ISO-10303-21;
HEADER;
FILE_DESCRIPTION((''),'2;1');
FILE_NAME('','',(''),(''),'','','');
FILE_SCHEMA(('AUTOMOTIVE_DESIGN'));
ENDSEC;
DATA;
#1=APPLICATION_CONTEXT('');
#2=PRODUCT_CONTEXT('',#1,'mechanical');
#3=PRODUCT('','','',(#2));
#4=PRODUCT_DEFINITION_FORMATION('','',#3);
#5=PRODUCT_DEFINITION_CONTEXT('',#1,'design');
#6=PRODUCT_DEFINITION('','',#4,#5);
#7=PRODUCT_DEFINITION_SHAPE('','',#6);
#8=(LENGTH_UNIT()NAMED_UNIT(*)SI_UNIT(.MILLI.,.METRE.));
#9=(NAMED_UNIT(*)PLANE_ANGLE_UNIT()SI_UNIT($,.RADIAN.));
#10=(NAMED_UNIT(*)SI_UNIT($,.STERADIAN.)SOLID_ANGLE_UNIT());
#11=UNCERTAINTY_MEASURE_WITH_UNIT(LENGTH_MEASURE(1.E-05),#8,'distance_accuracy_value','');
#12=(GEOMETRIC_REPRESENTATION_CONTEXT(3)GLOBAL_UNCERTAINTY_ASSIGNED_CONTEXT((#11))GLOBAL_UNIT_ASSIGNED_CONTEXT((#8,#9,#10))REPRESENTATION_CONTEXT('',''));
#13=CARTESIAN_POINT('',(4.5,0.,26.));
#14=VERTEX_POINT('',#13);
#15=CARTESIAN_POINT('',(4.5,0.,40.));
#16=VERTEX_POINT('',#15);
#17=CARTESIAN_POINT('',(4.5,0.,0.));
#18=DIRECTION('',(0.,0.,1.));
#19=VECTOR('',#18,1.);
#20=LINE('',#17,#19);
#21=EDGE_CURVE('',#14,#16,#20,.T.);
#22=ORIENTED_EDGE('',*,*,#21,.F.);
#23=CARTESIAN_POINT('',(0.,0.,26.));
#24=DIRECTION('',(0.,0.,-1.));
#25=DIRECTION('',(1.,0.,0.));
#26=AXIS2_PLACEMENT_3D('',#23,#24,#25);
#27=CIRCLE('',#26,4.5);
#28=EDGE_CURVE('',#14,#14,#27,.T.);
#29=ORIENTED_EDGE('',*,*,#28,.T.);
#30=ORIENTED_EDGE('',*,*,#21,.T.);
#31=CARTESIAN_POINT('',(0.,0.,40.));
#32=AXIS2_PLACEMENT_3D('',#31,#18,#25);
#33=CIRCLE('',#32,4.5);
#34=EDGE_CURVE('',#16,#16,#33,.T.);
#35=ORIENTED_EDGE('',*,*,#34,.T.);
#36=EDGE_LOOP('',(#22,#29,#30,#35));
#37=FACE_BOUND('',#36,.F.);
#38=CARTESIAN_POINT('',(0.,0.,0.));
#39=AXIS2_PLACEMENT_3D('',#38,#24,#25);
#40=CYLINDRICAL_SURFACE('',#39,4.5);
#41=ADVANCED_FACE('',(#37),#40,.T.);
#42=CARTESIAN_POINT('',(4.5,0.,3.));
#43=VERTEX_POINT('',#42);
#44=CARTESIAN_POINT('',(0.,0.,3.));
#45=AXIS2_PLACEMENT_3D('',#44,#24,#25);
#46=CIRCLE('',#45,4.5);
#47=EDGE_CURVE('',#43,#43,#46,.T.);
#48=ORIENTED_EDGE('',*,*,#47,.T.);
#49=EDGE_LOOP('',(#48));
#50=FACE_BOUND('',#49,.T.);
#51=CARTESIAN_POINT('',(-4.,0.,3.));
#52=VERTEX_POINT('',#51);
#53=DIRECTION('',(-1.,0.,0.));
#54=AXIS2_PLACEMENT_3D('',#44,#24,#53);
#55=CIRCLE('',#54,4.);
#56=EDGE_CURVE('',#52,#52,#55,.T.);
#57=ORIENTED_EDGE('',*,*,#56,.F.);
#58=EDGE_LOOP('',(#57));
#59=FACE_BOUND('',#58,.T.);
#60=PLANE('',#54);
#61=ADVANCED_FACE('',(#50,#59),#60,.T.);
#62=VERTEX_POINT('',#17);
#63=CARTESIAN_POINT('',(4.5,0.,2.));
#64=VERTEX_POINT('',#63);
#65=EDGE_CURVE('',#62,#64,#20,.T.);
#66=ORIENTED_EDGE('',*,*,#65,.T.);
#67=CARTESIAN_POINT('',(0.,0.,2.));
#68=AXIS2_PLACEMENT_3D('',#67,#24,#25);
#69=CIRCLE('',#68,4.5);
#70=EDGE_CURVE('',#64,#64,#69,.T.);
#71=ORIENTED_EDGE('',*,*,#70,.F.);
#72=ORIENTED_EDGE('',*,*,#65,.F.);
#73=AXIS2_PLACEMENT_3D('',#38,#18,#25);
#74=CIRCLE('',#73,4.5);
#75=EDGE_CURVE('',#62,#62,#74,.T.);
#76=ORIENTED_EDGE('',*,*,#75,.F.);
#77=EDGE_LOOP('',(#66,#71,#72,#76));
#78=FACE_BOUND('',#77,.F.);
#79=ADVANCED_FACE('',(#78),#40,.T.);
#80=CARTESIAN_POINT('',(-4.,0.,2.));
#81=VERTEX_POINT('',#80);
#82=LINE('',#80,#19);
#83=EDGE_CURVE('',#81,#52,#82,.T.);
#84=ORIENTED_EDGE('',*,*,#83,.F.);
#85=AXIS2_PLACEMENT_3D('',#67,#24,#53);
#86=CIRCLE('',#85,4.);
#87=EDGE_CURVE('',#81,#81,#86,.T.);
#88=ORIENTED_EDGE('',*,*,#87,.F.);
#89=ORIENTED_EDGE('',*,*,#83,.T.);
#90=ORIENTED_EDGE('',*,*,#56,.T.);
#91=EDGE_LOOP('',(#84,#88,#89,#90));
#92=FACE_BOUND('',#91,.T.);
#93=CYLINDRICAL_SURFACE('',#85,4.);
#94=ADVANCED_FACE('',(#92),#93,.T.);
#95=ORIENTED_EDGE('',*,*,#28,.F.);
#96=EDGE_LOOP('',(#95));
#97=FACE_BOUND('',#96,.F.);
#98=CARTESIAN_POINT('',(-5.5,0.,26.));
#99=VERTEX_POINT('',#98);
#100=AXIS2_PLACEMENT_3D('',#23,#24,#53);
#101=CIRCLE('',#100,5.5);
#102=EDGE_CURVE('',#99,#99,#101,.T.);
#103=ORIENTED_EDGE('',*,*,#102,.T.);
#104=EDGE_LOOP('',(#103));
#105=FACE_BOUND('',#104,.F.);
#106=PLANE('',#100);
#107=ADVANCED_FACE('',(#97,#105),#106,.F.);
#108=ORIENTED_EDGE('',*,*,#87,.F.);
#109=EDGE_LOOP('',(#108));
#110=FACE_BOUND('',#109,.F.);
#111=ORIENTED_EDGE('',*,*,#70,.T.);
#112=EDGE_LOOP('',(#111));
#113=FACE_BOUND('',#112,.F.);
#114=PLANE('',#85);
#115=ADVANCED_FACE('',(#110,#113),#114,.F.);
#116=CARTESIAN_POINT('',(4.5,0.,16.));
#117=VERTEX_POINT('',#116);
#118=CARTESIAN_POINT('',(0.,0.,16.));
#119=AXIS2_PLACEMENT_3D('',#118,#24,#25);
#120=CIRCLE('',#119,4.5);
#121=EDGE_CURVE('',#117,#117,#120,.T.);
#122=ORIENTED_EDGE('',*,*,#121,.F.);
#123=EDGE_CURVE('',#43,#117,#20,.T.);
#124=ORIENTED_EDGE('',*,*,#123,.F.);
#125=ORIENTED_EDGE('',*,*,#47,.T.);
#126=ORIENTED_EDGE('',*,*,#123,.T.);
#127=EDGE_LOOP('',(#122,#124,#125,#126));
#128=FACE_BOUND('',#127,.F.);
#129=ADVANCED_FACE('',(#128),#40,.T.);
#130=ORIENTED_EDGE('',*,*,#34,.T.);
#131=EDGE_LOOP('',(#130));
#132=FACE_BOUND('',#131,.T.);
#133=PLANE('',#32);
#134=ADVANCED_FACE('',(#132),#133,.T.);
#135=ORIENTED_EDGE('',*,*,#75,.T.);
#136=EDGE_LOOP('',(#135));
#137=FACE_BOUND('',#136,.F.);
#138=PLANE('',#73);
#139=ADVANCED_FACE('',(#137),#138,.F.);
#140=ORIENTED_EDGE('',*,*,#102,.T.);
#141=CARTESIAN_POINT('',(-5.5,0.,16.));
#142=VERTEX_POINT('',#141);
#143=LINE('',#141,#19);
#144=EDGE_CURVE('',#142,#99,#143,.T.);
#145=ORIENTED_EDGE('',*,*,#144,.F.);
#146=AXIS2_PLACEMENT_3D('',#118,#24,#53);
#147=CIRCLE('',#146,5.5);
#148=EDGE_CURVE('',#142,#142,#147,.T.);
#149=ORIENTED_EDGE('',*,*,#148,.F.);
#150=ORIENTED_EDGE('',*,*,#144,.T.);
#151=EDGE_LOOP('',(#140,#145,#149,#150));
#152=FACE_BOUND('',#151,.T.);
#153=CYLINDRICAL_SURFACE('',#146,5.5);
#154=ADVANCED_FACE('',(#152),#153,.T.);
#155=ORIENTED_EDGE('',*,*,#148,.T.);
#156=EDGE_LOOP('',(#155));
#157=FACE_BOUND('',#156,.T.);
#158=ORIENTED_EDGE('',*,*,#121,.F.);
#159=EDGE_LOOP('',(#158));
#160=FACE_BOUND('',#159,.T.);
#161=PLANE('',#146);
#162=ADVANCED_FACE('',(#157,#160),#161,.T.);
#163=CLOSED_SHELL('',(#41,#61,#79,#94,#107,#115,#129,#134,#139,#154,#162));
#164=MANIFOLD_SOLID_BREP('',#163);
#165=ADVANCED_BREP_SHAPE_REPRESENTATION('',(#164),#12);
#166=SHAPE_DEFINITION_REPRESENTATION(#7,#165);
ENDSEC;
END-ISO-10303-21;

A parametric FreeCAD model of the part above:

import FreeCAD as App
import Part
import Sketcher

doc = App.newDocument("Part")
body = doc.addObject("PartDesign::Body", "Body")

sketch1 = body.newObject("Sketcher::SketchObject", "Sketch")
sketch1.AttachmentSupport = (doc.getObject("XY_Plane"), [""])
sketch1.MapMode = "FlatFace"
sketch1.addGeometry(Part.Circle(App.Vector(0, 0, 0), App.Vector(0, 0, 1), 4.5), False)
sketch1.addConstraint([
    Sketcher.Constraint("Coincident", 0, 3, -1, 1),
    Sketcher.Constraint("Diameter", 0, 9.0),
])
pad1 = body.newObject("PartDesign::Pad", "Pad")
pad1.Profile = sketch1
pad1.Length = 40

sketch2 = body.newObject("Sketcher::SketchObject", "Sketch001")
sketch2.AttachmentSupport = (doc.getObject("XY_Plane"), [""])
sketch2.MapMode = "FlatFace"
sketch2.AttachmentOffset = App.Placement(App.Vector(0, 0, 16), App.Rotation())
sketch2.addGeometry(Part.Circle(App.Vector(0, 0, 0), App.Vector(0, 0, 1), 5.5), False)
sketch2.addConstraint([
    Sketcher.Constraint("Coincident", 0, 3, -1, 1),
    Sketcher.Constraint("Diameter", 0, 11.0),
])
pad2 = body.newObject("PartDesign::Pad", "Pad001")
pad2.Profile = sketch2
pad2.Length = 10

sketch3 = body.newObject("Sketcher::SketchObject", "Sketch002")
sketch3.AttachmentSupport = (doc.getObject("XY_Plane"), [""])
sketch3.MapMode = "FlatFace"
sketch3.AttachmentOffset = App.Placement(App.Vector(0, 0, 2), App.Rotation())
sketch3.addGeometry([
    Part.Circle(App.Vector(0, 0, 0), App.Vector(0, 0, 1), 4.5),
    Part.Circle(App.Vector(0, 0, 0), App.Vector(0, 0, 1), 4),
], False)
sketch3.addConstraint([
    Sketcher.Constraint("Coincident", 0, 3, -1, 1),
    Sketcher.Constraint("Coincident", 1, 3, -1, 1),
    Sketcher.Constraint("Diameter", 1, 8.0),
    Sketcher.Constraint("Diameter", 0, 9.0),
])
pocket1 = body.newObject("PartDesign::Pocket", "Pocket")
pocket1.Profile = sketch3
pocket1.Length = 1
pocket1.Reversed = True

doc.recompute()
